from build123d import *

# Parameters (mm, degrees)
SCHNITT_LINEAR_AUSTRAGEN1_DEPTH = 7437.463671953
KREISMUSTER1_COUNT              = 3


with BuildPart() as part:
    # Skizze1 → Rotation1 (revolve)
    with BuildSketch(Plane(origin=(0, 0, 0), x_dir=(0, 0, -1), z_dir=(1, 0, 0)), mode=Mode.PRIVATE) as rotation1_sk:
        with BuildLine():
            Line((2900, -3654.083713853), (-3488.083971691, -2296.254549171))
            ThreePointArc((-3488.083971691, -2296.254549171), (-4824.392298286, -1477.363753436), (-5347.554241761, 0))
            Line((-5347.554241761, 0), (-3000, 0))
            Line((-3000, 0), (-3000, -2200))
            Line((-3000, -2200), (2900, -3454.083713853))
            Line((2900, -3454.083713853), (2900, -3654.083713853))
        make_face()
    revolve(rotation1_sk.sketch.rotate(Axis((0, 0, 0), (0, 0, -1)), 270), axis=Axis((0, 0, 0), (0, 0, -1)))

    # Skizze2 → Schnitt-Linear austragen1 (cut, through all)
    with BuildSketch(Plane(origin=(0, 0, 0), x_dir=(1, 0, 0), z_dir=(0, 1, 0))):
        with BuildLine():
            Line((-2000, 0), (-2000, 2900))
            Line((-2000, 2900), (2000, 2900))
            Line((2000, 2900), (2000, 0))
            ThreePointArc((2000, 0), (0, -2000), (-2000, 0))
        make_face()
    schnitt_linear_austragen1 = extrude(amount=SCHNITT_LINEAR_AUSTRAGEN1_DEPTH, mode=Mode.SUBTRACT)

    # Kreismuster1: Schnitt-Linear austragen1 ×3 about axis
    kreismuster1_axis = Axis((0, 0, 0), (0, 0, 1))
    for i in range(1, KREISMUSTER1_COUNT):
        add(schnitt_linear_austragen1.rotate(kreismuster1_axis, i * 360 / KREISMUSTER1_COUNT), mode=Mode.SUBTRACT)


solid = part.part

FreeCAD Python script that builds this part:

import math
import FreeCAD as App
import Part
import Sketcher
from FreeCAD import Vector
Q = App.Units.Quantity

doc = App.newDocument("Part")
body = doc.addObject("PartDesign::Body", "Body")

sketch1 = doc.addObject("Sketcher::SketchObject", "Sketch")
body.addObject(sketch1)
sketch1.AttachmentSupport = (doc.YZ_Plane, [""])
sketch1.MapMode = "FlatFace"
sketch1.addGeometry([
    Part.LineSegment(Vector(-2296, 3488, 0), Vector(-3654, -2900, 0)),
    Part.LineSegment(Vector(-3654, -2900, 0), Vector(-3454, -2900, 0)),
    Part.LineSegment(Vector(-3454, -2900, 0), Vector(-2200, 3000, 0)),
    Part.LineSegment(Vector(-2200, 3000, 0), Vector(0, 3000, 0)),
    Part.LineSegment(Vector(0, 3000, 0), Vector(0, 5348, 0)),
    Part.ArcOfCircle(Part.Circle(Vector(0, 3000, 0), Vector(0, 0, 1), 2348), math.radians(90), math.radians(168)),
], False)
sketch1.addConstraint([
    Sketcher.Constraint("Coincident", 0, 2, 1, 1),
    Sketcher.Constraint("Coincident", 1, 2, 2, 1),
    Sketcher.Constraint("Coincident", 2, 2, 3, 1),
    Sketcher.Constraint("Coincident", 3, 2, 4, 1),
    Sketcher.Constraint("Coincident", 4, 2, 5, 1),
    Sketcher.Constraint("Coincident", 5, 2, 0, 1),
    Sketcher.Constraint("Horizontal", 1),
    Sketcher.Constraint("Horizontal", 3),
    Sketcher.Constraint("Vertical", 4),
    Sketcher.Constraint("Coincident", 3, 2, 5, 3),
    Sketcher.Constraint("PointOnObject", 5, 3, -2),
    Sketcher.Constraint("Parallel", 0, 2),
    Sketcher.Constraint("DistanceX", 1, 1, 1, 2, Q("200 mm")),
    Sketcher.Constraint("DistanceX", 3, 1, 3, 2, Q("2200 mm")),
    Sketcher.Constraint("Angle", 0, Q("-102 deg")),
    Sketcher.Constraint("DistanceY", -1, 1, 5, 3, Q("3000 mm")),
    Sketcher.Constraint("DistanceY", 0, 2, -1, 1, Q("2900 mm")),
    Sketcher.Constraint("Distance", 0, Q("6530.797568 mm")),
])
revolution = doc.addObject("PartDesign::Revolution", "Revolution")
body.addObject(revolution)
revolution.Profile = sketch1
revolution.ReferenceAxis = (sketch1, ["V_Axis"])
revolution.Angle = 360

sketch2 = doc.addObject("Sketcher::SketchObject", "Sketch001")
body.addObject(sketch2)
sketch2.AttachmentSupport = (doc.XZ_Plane, [""])
sketch2.MapMode = "FlatFace"
sketch2.addGeometry([
    Part.LineSegment(Vector(-2000, -2900, 0), Vector(-2000, 0, 0)),
    Part.ArcOfCircle(Part.Circle(Vector(0, 0, 0), Vector(0, 0, 1), 2000), math.radians(0), math.radians(180)),
    Part.LineSegment(Vector(2000, 0, 0), Vector(2000, -2900, 0)),
    Part.LineSegment(Vector(2000, -2900, 0), Vector(-2000, -2900, 0)),
], False)
sketch2.addConstraint([
    Sketcher.Constraint("Coincident", 0, 2, 1, 2),
    Sketcher.Constraint("Coincident", 1, 1, 2, 1),
    Sketcher.Constraint("Coincident", 2, 2, 3, 1),
    Sketcher.Constraint("Coincident", 3, 2, 0, 1),
    Sketcher.Constraint("Vertical", 0),
    Sketcher.Constraint("Vertical", 2),
    Sketcher.Constraint("Horizontal", 3),
    Sketcher.Constraint("Coincident", 1, 3, -1, 1),
    Sketcher.Constraint("PointOnObject", 0, 2, -1),
    Sketcher.Constraint("Equal", 0, 2),
    Sketcher.Constraint("Radius", 1, Q("2000 mm")),
    Sketcher.Constraint("DistanceY", 0, 1, 0, 2, Q("2900 mm")),
])
pocket1 = doc.addObject("PartDesign::Pocket", "Pocket")
body.addObject(pocket1)
pocket1.Profile = sketch2
pocket1.Type = "ThroughAll"
doc.recompute()

polarpattern = doc.addObject("PartDesign::PolarPattern", "PolarPattern")
body.addObject(polarpattern)
polarpattern.Originals = [pocket1]
polarpattern.Axis = (doc.Z_Axis, [""])
polarpattern.Angle = 360
polarpattern.Occurrences = 3
body.Tip = polarpattern

doc.recompute()
